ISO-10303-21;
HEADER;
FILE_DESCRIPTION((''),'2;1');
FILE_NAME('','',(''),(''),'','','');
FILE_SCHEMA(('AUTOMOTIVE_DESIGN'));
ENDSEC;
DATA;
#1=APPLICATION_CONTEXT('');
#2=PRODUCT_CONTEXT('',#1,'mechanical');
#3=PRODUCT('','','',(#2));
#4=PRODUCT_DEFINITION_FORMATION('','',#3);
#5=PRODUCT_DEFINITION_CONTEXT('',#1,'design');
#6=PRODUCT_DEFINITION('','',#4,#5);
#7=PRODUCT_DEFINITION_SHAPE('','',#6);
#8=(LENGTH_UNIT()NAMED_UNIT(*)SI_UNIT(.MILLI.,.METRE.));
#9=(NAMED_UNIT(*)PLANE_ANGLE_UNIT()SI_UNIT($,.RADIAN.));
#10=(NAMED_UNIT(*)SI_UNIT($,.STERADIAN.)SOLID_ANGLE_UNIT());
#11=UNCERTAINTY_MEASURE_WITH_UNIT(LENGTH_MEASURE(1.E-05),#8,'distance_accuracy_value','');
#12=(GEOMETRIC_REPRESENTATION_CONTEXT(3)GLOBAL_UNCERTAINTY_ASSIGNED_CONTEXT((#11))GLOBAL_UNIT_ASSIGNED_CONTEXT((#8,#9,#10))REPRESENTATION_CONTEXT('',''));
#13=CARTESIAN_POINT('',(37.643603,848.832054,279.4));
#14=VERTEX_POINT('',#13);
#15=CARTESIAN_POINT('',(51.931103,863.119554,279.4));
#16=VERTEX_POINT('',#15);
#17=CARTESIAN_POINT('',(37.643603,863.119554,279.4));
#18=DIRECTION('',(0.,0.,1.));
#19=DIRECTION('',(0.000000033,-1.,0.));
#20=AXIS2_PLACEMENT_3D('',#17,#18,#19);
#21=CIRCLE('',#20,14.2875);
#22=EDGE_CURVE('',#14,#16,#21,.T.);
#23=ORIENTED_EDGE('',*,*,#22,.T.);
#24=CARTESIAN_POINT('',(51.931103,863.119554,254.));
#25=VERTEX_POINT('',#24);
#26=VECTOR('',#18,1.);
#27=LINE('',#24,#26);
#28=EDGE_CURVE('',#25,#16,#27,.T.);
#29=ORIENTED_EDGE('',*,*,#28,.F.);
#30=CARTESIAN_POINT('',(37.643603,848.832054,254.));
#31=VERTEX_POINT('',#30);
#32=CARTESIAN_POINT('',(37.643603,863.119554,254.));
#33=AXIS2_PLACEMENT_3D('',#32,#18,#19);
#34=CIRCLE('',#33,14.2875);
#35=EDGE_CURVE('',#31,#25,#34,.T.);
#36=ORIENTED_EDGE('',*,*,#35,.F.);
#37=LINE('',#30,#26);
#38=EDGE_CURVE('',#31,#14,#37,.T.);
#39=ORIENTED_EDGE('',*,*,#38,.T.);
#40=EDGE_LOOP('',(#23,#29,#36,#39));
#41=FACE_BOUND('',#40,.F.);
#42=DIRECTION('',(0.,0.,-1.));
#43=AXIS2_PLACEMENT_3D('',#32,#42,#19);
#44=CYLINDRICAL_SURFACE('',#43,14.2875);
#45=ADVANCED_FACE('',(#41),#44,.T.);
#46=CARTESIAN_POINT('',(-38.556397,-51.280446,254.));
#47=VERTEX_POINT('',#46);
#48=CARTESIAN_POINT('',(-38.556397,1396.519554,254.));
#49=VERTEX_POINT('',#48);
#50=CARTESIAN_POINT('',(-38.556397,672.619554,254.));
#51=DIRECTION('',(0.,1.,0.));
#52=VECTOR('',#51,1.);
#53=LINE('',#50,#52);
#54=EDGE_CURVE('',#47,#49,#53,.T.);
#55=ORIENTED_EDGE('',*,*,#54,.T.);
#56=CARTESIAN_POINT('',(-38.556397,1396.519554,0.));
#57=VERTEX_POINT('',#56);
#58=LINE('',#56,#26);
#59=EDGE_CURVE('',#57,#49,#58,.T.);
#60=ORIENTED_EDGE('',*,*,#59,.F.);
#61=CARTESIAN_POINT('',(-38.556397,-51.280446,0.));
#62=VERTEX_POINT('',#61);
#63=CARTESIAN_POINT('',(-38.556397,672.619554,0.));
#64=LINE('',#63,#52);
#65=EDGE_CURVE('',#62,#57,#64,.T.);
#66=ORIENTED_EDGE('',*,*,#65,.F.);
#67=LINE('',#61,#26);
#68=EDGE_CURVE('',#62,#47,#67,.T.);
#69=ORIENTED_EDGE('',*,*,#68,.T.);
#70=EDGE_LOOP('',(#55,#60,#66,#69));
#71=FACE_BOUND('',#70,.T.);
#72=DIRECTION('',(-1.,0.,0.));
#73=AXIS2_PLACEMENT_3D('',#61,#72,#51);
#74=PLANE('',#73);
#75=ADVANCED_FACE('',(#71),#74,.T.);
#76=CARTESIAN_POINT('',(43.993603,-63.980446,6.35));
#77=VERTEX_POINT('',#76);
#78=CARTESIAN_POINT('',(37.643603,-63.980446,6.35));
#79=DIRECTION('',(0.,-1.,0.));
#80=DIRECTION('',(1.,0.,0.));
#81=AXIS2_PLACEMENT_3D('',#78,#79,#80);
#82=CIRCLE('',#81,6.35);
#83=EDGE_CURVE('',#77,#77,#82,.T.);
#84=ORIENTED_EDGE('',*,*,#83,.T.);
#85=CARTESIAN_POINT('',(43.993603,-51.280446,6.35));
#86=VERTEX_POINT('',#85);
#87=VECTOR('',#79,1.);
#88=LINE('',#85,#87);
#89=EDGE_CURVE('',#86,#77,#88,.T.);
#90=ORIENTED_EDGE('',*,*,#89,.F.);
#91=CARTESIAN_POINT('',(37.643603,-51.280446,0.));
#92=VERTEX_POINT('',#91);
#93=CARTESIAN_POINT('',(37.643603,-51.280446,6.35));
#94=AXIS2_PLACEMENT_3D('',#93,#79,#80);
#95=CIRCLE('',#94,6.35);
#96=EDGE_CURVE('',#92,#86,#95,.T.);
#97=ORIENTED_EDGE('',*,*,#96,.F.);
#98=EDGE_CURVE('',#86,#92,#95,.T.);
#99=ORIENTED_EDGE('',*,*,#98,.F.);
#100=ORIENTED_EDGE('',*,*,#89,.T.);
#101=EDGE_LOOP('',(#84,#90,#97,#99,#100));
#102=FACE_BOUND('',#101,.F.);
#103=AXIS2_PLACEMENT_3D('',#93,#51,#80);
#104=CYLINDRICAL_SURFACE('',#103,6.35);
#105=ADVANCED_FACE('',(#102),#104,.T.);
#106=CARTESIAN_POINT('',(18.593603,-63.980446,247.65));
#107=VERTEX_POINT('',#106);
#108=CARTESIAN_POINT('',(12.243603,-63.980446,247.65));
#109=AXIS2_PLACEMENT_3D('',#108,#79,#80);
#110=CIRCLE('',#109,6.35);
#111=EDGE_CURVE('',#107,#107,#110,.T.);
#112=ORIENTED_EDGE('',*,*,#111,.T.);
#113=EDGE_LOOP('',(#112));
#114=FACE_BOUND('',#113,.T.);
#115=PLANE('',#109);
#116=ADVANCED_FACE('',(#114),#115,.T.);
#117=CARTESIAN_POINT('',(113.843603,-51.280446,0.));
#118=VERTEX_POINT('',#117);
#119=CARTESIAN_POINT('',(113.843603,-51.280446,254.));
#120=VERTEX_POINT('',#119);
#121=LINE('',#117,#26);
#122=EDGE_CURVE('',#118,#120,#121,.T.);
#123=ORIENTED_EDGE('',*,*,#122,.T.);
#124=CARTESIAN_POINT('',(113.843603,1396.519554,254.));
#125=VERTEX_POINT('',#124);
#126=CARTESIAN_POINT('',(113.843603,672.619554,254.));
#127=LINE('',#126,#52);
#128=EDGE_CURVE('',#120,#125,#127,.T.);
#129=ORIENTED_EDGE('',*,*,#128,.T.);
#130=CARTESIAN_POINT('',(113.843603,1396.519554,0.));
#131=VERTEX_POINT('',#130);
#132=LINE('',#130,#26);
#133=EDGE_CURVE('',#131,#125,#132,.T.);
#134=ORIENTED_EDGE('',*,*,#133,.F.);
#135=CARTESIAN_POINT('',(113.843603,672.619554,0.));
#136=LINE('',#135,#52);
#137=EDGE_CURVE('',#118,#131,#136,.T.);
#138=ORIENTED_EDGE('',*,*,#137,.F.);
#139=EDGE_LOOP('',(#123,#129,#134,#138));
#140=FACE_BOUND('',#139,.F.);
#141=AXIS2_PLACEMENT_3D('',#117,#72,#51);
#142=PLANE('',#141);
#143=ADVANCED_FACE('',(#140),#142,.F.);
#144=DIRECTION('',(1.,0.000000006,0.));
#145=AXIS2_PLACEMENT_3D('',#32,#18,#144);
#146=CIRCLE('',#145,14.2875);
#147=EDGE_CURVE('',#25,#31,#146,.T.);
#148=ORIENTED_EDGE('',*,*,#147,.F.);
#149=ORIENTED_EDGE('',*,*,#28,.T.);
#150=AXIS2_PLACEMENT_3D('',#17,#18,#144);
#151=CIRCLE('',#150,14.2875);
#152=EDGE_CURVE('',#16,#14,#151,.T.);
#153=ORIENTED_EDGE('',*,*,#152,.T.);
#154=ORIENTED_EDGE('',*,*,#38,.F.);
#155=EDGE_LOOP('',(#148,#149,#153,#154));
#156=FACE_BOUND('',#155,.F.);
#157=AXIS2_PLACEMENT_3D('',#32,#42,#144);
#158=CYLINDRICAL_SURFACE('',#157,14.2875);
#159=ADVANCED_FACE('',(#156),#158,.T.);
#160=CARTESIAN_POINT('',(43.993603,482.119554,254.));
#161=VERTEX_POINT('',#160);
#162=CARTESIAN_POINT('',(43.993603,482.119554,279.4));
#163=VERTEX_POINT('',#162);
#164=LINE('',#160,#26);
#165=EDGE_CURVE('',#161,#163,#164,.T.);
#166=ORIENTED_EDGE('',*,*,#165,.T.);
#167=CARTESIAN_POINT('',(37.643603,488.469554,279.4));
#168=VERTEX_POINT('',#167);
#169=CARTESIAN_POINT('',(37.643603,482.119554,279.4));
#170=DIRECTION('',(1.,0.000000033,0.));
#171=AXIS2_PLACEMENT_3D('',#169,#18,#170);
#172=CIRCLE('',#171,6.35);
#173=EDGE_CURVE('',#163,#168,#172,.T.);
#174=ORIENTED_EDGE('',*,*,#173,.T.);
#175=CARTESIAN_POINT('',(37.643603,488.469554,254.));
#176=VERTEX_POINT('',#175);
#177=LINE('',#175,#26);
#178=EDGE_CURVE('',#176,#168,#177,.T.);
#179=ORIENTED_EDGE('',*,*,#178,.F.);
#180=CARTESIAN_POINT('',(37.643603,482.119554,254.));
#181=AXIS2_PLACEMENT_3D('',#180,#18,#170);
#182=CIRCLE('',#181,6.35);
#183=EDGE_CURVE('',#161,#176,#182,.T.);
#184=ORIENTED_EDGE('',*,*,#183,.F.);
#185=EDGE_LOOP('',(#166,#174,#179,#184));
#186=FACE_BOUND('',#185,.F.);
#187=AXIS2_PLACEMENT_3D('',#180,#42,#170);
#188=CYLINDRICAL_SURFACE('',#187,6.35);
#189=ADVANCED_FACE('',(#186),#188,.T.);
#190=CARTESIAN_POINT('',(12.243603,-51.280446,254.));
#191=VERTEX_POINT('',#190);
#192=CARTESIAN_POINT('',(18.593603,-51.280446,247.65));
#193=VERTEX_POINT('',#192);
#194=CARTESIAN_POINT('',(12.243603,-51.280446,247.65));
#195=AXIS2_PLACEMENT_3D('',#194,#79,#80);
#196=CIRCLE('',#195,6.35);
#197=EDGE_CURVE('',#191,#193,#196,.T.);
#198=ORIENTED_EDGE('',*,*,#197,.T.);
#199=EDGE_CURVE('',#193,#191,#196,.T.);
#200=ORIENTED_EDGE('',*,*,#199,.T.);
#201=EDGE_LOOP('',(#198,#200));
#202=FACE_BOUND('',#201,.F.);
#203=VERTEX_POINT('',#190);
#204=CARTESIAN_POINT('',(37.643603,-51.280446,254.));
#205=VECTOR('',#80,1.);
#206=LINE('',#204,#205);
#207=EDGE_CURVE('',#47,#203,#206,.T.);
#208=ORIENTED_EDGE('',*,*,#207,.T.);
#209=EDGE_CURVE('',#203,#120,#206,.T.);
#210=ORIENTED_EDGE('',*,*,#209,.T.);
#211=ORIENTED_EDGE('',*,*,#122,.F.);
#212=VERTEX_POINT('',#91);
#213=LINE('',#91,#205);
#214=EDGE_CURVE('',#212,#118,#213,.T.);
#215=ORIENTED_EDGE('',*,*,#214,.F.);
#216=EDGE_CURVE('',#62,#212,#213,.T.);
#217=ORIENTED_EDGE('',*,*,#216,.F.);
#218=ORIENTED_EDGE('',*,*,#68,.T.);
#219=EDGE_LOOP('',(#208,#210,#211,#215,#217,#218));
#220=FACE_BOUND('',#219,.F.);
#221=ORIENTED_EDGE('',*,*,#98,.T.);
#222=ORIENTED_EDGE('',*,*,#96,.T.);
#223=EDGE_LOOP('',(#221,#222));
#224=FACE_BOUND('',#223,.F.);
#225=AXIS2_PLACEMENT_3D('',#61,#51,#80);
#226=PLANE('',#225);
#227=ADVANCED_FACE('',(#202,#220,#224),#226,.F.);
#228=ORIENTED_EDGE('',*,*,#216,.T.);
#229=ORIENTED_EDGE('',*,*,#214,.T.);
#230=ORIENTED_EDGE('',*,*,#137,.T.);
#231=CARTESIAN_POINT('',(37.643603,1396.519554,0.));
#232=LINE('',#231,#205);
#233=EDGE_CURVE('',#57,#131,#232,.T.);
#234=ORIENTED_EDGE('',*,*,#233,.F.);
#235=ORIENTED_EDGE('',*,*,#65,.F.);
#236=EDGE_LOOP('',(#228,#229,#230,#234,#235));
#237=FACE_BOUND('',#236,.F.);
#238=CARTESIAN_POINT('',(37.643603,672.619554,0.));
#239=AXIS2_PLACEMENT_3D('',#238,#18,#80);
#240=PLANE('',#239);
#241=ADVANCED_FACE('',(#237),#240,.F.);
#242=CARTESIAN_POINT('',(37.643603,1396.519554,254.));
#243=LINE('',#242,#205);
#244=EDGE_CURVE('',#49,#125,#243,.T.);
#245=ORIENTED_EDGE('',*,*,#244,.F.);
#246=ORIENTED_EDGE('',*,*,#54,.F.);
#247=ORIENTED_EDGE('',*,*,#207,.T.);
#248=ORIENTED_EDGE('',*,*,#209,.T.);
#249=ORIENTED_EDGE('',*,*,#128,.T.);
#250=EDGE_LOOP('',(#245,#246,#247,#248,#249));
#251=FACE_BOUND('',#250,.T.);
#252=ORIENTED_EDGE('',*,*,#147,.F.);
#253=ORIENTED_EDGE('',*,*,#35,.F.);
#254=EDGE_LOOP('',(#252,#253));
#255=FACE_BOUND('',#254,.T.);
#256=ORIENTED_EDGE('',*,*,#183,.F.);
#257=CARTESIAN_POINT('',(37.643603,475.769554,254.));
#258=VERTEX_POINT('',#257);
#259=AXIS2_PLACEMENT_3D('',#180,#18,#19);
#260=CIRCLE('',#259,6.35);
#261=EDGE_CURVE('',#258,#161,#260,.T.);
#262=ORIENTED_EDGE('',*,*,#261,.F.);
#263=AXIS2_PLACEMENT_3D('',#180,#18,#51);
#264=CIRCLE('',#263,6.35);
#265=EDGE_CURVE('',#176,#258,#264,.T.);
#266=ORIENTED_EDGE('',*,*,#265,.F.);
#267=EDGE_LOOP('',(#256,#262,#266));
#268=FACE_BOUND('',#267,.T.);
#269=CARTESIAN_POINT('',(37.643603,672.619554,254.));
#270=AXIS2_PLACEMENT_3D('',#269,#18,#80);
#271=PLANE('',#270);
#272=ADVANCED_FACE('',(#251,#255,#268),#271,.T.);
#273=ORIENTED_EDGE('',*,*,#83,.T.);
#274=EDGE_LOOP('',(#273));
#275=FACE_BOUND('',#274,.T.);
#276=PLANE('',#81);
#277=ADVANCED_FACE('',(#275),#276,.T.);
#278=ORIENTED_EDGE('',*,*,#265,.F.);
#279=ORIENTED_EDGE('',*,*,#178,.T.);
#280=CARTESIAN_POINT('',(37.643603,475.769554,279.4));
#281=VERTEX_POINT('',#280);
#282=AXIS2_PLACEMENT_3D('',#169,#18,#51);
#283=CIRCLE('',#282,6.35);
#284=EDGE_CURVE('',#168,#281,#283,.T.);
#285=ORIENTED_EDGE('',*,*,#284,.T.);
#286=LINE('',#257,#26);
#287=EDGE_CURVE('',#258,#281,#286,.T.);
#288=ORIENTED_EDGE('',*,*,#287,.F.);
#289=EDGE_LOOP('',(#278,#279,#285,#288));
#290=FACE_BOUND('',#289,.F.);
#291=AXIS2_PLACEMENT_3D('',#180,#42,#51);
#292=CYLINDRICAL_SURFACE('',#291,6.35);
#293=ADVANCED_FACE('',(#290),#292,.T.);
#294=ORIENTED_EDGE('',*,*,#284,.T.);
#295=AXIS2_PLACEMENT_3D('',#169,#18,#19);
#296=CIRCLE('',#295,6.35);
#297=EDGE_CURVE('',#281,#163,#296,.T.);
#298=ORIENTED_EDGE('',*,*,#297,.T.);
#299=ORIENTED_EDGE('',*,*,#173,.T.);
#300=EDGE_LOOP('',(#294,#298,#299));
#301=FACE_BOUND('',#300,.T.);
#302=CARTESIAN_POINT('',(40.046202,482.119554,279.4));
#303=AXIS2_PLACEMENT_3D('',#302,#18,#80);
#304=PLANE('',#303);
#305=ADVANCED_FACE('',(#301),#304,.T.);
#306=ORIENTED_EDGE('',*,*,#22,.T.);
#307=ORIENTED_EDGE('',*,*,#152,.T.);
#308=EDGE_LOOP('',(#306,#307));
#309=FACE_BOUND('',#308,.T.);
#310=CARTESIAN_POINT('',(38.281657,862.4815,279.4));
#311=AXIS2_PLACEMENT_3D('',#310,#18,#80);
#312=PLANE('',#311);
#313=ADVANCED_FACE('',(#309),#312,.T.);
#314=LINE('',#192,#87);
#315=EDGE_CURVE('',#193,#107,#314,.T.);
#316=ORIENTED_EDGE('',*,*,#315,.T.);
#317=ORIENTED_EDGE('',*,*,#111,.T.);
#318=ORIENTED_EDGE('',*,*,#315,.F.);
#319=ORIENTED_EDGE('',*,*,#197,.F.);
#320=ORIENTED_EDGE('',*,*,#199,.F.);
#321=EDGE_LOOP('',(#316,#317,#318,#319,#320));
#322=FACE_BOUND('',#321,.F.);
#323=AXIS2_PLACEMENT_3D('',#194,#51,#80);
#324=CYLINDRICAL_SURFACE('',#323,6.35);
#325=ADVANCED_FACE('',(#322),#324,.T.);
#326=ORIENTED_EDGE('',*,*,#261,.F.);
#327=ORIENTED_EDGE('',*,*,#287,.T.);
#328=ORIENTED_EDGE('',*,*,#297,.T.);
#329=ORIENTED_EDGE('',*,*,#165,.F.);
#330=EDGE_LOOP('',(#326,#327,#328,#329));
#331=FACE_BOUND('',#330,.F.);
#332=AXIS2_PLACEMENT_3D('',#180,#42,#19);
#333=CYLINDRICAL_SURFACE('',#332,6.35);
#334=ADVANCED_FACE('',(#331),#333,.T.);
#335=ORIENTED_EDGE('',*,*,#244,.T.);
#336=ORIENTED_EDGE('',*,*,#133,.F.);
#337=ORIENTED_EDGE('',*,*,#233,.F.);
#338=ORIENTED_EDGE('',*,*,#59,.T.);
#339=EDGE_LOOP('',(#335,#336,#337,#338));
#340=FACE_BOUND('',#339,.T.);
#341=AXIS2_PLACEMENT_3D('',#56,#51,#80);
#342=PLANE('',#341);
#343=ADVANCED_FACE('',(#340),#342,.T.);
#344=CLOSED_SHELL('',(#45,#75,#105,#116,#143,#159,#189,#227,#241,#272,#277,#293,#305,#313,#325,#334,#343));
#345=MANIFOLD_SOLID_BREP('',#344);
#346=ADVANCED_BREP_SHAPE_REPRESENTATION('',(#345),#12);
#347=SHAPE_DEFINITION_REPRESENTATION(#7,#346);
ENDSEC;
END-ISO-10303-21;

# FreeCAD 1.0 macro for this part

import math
import FreeCAD as App
import Part
import Sketcher

V = App.Vector
Q = App.Units.Quantity

doc = App.newDocument("Part")
body = doc.addObject("PartDesign::Body", "Body")

# Sketch on XY plane
sketch1 = body.newObject("Sketcher::SketchObject", "Sketch")
sketch1.AttachmentSupport = (doc.getObject("XY_Plane"), [""])
sketch1.MapMode = "FlatFace"
sketch1.addGeometry([
    Part.LineSegment(V(-38.556397, 1396.519554, 0), V(-38.556397, -51.280446, 0)),
    Part.LineSegment(V(-38.556397, -51.280446, 0), V(113.843603, -51.280446, 0)),
    Part.LineSegment(V(113.843603, -51.280446, 0), V(113.843603, 1396.519554, 0)),
    Part.LineSegment(V(113.843603, 1396.519554, 0), V(-38.556397, 1396.519554, 0)),
], False)
sketch1.addConstraint([
    Sketcher.Constraint("Coincident", 0, 2, 1, 1),
    Sketcher.Constraint("Coincident", 1, 2, 2, 1),
    Sketcher.Constraint("Coincident", 2, 2, 3, 1),
    Sketcher.Constraint("Coincident", 3, 2, 0, 1),
    Sketcher.Constraint("Vertical", 0),
    Sketcher.Constraint("Horizontal", 1),
    Sketcher.Constraint("Vertical", 2),
    Sketcher.Constraint("Horizontal", 3),
    Sketcher.Constraint("DistanceX", 1, 1, 1, 2, Q("6 in")),
    Sketcher.Constraint("DistanceY", 0, 2, 0, 1, Q("57 in")),
    Sketcher.Constraint("DistanceX", 0, 2, -1, 1, Q("38.556397 mm")),
    Sketcher.Constraint("DistanceY", 0, 2, -1, 1, Q("51.280446 mm")),
])
pad1 = body.newObject("PartDesign::Pad", "Pad")
pad1.Profile = sketch1
pad1.Length = Q("10 in")

# Sketch on XY plane
sketch2 = body.newObject("Sketcher::SketchObject", "Sketch001")
sketch2.AttachmentSupport = (doc.getObject("XY_Plane"), [""])
sketch2.MapMode = "FlatFace"
sketch2.AttachmentOffset = App.Placement(V(0, 0, 10 * 25.4), App.Rotation())
sketch2.addGeometry([
    Part.ArcOfCircle(Part.Circle(V(37.643603, 482.119554, 0), V(0, 0, 1), 6.35), math.radians(-89.999998), math.radians(-0.000002)),  # 0
    Part.ArcOfCircle(Part.Circle(V(37.643603, 482.119554, 0), V(0, 0, 1), 6.35), math.radians(0.000002), math.radians(89.999998)),  # 1
    Part.ArcOfCircle(Part.Circle(V(37.643603, 482.119554, 0), V(0, 0, 1), 6.35), math.radians(90), math.radians(270)),  # 2
    Part.ArcOfCircle(Part.Circle(V(37.643603, 863.119554, 0), V(0, 0, 1), 14.2875), math.radians(0), math.radians(270)),  # 3
    Part.ArcOfCircle(Part.Circle(V(37.643603, 863.119554, 0), V(0, 0, 1), 14.2875), math.radians(-89.999998), math.radians(-0.000002)),  # 4
], False)
sketch2.addConstraint([
    Sketcher.Constraint("Tangent", 0, 2, 1, 1),
    Sketcher.Constraint("Tangent", 1, 2, 2, 1),
    Sketcher.Constraint("Tangent", 2, 2, 0, 1),
    Sketcher.Constraint("Tangent", 3, 1, 4, 2),
    Sketcher.Constraint("Coincident", 4, 1, 3, 2),
    Sketcher.Constraint("Horizontal", 2, 3, 0, 2),
    Sketcher.Constraint("Horizontal", 4, 3, 3, 1),
    Sketcher.Constraint("Vertical", 2, 3, 3, 3),
    Sketcher.Constraint("Vertical", 4, 3, 1, 2),
    Sketcher.Constraint("Vertical", 1, 2, 2, 2),
    Sketcher.Constraint("Vertical", 2, 2, 4, 1),
    Sketcher.Constraint("Radius", 0, Q("0.25 in")),
    Sketcher.Constraint("Radius", 3, Q("0.5625 in")),
    Sketcher.Constraint("DistanceY", 0, 3, 3, 3, Q("15 in")),
    Sketcher.Constraint("DistanceX", -1, 1, 0, 3, Q("37.643603 mm")),
    Sketcher.Constraint("DistanceY", -1, 1, 0, 3, Q("482.119554 mm")),
])
pad2 = body.newObject("PartDesign::Pad", "Pad001")
pad2.Profile = sketch2
pad2.Length = Q("1 in")

# Sketch on XZ plane
sketch3 = body.newObject("Sketcher::SketchObject", "Sketch002")
sketch3.AttachmentSupport = (doc.getObject("XZ_Plane"), [""])
sketch3.MapMode = "FlatFace"
sketch3.AttachmentOffset = App.Placement(V(0, 0, 51.280446), App.Rotation())
sketch3.addGeometry([
    Part.Circle(V(37.643603, 6.35, 0), V(0, 0, 1), 6.35),
    Part.Circle(V(12.243603, 247.65, 0), V(0, 0, 1), 6.35),
], False)
sketch3.addConstraint([
    Sketcher.Constraint("Equal", 0, 1),
    Sketcher.Constraint("Diameter", 0, Q("0.5 in")),
    Sketcher.Constraint("DistanceX", 1, 3, 0, 3, Q("1 in")),
    Sketcher.Constraint("DistanceY", 0, 3, 1, 3, Q("9.5 in")),
    Sketcher.Constraint("DistanceY", -1, 1, 0, 3, Q("0.25 in")),
    Sketcher.Constraint("DistanceX", -1, 1, 0, 3, Q("37.643603 mm")),
])
pad3 = body.newObject("PartDesign::Pad", "Pad002")
pad3.Profile = sketch3
pad3.Length = Q("0.5 in")

doc.recompute()
